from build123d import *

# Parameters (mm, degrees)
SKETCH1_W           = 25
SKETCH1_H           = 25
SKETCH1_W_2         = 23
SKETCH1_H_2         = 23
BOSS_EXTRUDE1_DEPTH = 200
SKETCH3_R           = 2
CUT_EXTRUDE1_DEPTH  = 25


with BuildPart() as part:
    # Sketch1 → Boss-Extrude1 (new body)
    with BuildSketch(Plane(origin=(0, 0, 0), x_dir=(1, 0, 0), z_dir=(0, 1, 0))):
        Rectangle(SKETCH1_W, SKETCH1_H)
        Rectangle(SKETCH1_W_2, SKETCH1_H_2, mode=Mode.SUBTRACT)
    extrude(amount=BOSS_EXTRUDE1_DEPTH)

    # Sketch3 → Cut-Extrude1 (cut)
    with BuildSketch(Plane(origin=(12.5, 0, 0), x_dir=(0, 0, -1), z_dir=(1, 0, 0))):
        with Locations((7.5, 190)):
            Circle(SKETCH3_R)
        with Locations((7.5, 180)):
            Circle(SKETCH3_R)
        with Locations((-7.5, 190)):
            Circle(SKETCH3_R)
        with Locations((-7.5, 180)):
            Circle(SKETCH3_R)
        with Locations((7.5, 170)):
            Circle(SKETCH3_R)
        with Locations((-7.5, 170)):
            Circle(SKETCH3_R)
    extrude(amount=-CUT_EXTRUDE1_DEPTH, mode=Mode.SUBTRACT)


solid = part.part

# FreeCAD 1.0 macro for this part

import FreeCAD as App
import Part
import Sketcher

V = App.Vector


def add_polygon(sketch, points):
    """Adds a closed chain of lines whose ends are joined by coincident constraints."""
    first, n = sketch.GeometryCount, len(points)
    for a, b in zip(points, points[1:] + points[:1]):
        sketch.addGeometry(Part.LineSegment(App.Vector(*a, 0), App.Vector(*b, 0)), False)
    for i in range(n):
        sketch.addConstraint(Sketcher.Constraint("Coincident", first + i, 2, first + (i + 1) % n, 1))

doc = App.newDocument("Part")
body = doc.addObject("PartDesign::Body", "Body")

# Sketch on XZ plane
sketch1 = doc.addObject("Sketcher::SketchObject", "Sketch")
body.addObject(sketch1)
sketch1.AttachmentSupport = (doc.XZ_Plane, [""])
sketch1.MapMode = "FlatFace"
add_polygon(sketch1, [(-12.5, -12.5), (-12.5, 12.5), (12.5, 12.5), (12.5, -12.5)])  # lines 0-3
add_polygon(sketch1, [(11.5, 11.5), (-11.5, 11.5), (-11.5, -11.5), (11.5, -11.5)])  # lines 4-7
sketch1.addConstraint(Sketcher.Constraint("Vertical", 0))
sketch1.addConstraint(Sketcher.Constraint("Horizontal", 1))
sketch1.addConstraint(Sketcher.Constraint("Vertical", 2))
sketch1.addConstraint(Sketcher.Constraint("Horizontal", 3))
sketch1.addConstraint(Sketcher.Constraint("Horizontal", 4))
sketch1.addConstraint(Sketcher.Constraint("Vertical", 5))
sketch1.addConstraint(Sketcher.Constraint("Horizontal", 6))
sketch1.addConstraint(Sketcher.Constraint("Vertical", 7))
sketch1.addConstraint(Sketcher.Constraint("Symmetric", 0, 2, 2, 2, -1, 1))
sketch1.addConstraint(Sketcher.Constraint("Symmetric", 4, 2, 6, 2, -1, 1))
sketch1.addConstraint(Sketcher.Constraint("Equal", 3, 0))
sketch1.addConstraint(Sketcher.Constraint("Equal", 6, 5))
sketch1.addConstraint(Sketcher.Constraint("DistanceX", 1, 1, 1, 2, 25.0))
sketch1.addConstraint(Sketcher.Constraint("DistanceX", 4, 2, 4, 1, 23.0))
pad1 = doc.addObject("PartDesign::Pad", "Pad")
body.addObject(pad1)
pad1.Profile = sketch1
pad1.Length = 200
pad1.Reversed = True

# Sketch on YZ plane
sketch2 = doc.addObject("Sketcher::SketchObject", "Sketch001")
body.addObject(sketch2)
sketch2.AttachmentSupport = (doc.YZ_Plane, [""])
sketch2.MapMode = "FlatFace"
sketch2.AttachmentOffset = App.Placement(V(0, 0, 12.5), App.Rotation())
sketch2.addGeometry(Part.Circle(V(190, -7.5, 0), V(0, 0, 1), 2), False)
sketch2.addGeometry(Part.Circle(V(180, -7.5, 0), V(0, 0, 1), 2), False)
sketch2.addGeometry(Part.Circle(V(190, 7.5, 0), V(0, 0, 1), 2), False)
sketch2.addGeometry(Part.Circle(V(180, 7.5, 0), V(0, 0, 1), 2), False)
sketch2.addGeometry(Part.Circle(V(170, -7.5, 0), V(0, 0, 1), 2), False)
sketch2.addGeometry(Part.Circle(V(170, 7.5, 0), V(0, 0, 1), 2), False)
sketch2.addConstraint(Sketcher.Constraint("Equal", 0, 1))
sketch2.addConstraint(Sketcher.Constraint("Equal", 1, 2))
sketch2.addConstraint(Sketcher.Constraint("Equal", 2, 3))
sketch2.addConstraint(Sketcher.Constraint("Equal", 3, 4))
sketch2.addConstraint(Sketcher.Constraint("Equal", 4, 5))
sketch2.addConstraint(Sketcher.Constraint("Symmetric", 0, 3, 2, 3, -1))
sketch2.addConstraint(Sketcher.Constraint("Symmetric", 1, 3, 3, 3, -1))
sketch2.addConstraint(Sketcher.Constraint("Symmetric", 4, 3, 5, 3, -1))
sketch2.addConstraint(Sketcher.Constraint("Horizontal", 0, 3, 1, 3))
sketch2.addConstraint(Sketcher.Constraint("Horizontal", 1, 3, 4, 3))
sketch2.addConstraint(Sketcher.Constraint("Diameter", 0, 4.0))
sketch2.addConstraint(Sketcher.Constraint("DistanceX", -1, 1, 0, 3, 190.0))
sketch2.addConstraint(Sketcher.Constraint("DistanceX", -1, 1, 1, 3, 180.0))
sketch2.addConstraint(Sketcher.Constraint("DistanceX", -1, 1, 4, 3, 170.0))
sketch2.addConstraint(Sketcher.Constraint("DistanceY", 0, 3, 2, 3, 15.0))
pocket1 = doc.addObject("PartDesign::Pocket", "Pocket")
body.addObject(pocket1)
pocket1.Profile = sketch2
pocket1.Length = 25

doc.recompute()
